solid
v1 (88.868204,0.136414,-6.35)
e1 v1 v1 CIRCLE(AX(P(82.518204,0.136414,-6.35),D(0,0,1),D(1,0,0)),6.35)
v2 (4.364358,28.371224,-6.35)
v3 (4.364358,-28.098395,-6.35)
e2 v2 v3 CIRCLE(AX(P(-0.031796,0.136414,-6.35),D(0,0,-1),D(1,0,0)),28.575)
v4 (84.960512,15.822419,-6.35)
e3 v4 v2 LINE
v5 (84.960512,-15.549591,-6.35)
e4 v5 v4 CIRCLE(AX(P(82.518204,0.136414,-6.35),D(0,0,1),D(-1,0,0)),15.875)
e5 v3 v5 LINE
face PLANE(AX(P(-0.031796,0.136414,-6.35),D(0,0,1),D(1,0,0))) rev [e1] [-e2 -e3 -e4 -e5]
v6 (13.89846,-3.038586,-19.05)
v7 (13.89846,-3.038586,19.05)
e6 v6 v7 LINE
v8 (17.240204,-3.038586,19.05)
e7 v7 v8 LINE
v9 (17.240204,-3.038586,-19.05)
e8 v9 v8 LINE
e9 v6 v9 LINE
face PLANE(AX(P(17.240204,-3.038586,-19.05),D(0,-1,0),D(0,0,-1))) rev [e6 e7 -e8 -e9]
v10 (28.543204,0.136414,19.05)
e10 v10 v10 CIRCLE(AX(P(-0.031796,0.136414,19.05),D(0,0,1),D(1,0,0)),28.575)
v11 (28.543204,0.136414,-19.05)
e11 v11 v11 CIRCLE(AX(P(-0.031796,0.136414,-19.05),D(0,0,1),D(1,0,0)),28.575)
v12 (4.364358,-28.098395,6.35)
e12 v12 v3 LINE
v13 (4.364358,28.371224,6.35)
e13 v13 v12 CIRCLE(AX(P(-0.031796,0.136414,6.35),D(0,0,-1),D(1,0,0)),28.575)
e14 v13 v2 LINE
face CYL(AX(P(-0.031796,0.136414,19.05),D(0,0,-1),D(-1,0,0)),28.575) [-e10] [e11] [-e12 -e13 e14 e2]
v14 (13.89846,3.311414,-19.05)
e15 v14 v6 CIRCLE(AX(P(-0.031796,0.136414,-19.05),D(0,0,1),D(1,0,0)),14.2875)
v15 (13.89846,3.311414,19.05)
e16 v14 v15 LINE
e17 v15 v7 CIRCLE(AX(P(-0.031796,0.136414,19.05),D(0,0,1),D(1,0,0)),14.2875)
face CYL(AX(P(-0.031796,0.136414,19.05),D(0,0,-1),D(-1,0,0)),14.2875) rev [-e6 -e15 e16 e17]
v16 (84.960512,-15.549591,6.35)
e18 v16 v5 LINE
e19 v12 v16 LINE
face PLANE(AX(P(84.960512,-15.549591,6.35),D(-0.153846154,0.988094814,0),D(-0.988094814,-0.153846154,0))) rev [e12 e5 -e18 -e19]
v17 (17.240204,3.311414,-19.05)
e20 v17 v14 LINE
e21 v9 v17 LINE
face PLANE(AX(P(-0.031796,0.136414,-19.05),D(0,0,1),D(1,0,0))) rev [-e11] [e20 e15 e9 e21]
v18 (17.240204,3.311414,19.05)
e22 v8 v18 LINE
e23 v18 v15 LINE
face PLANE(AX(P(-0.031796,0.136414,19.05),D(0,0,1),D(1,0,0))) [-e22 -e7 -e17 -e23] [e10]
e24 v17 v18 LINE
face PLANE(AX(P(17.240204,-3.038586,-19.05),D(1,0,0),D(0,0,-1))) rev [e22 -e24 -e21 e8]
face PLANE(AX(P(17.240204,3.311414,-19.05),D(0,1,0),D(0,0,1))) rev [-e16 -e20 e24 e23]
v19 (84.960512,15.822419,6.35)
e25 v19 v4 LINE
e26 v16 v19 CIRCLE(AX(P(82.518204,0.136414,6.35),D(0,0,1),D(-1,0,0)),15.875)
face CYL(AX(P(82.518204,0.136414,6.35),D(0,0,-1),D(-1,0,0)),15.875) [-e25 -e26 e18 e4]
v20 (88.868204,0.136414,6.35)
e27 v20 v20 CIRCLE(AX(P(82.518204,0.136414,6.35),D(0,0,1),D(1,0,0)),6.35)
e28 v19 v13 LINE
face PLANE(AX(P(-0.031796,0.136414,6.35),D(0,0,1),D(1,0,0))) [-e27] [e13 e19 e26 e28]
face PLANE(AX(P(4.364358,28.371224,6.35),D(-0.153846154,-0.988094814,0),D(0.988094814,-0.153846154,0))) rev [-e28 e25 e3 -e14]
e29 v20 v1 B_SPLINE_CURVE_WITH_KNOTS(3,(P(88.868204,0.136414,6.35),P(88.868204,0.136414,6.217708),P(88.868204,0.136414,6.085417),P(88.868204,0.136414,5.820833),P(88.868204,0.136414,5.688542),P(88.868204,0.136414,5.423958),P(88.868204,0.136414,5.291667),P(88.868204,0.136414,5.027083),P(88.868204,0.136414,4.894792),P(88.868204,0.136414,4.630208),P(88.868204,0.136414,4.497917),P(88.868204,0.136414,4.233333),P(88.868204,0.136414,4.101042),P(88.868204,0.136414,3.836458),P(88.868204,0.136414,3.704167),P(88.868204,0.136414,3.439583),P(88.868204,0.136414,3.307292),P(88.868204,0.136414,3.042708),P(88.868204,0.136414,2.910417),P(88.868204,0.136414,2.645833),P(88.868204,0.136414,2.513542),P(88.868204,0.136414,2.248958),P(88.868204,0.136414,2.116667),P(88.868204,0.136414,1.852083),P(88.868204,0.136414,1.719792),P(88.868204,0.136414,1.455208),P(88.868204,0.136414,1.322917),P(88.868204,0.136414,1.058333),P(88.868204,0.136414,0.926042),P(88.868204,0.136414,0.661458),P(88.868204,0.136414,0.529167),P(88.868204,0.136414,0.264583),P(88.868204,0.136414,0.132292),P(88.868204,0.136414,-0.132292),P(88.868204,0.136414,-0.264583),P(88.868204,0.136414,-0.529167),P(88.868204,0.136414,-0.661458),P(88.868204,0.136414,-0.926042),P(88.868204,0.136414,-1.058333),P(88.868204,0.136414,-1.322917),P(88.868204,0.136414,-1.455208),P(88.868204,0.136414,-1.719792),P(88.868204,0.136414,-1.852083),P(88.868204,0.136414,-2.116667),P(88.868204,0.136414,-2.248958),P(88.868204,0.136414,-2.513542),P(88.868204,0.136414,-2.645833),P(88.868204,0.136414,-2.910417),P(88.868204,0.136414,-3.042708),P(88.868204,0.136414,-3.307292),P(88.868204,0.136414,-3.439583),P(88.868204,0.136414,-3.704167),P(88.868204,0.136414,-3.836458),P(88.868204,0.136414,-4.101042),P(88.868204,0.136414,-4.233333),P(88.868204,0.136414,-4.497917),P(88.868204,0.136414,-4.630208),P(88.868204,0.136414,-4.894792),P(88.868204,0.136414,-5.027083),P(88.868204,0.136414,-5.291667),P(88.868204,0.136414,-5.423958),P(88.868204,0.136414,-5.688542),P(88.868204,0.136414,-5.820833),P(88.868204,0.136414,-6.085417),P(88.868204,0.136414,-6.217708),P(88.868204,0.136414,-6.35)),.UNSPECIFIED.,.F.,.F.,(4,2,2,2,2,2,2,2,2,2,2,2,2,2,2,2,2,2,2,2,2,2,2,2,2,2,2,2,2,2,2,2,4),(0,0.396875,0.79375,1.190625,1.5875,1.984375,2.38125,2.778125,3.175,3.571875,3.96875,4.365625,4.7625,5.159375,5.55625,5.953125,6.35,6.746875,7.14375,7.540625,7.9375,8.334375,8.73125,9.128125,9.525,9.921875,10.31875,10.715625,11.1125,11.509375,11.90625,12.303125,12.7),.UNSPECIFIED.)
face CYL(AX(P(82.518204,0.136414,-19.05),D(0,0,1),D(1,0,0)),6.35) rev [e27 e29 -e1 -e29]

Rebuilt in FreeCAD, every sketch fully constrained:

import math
import FreeCAD as App
import Part
import Sketcher

V = App.Vector
Q = App.Units.Quantity

doc = App.newDocument("Part")
body = doc.addObject("PartDesign::Body", "Body")

sketch1 = doc.addObject("Sketcher::SketchObject", "Sketch")
body.addObject(sketch1)
sketch1.AttachmentSupport = (doc.XY_Plane, [""])
sketch1.MapMode = "FlatFace"
sketch1.addGeometry([
    Part.Circle(V(-0.031796, 0.136414, 0), V(0, 0, 1), 28.575),
    Part.Circle(V(-0.031796, 0.136414, 0), V(0, 0, 1), 14.2875),
], False)
sketch1.addConstraint([
    Sketcher.Constraint("Coincident", 1, 3, 0, 3),
    Sketcher.Constraint("Diameter", 0, Q("2.25 in")),
    Sketcher.Constraint("Diameter", 1, Q("1.125 in")),
    Sketcher.Constraint("DistanceX", 0, 3, -1, 1, Q("0.031796 mm")),
    Sketcher.Constraint("DistanceY", -1, 1, 0, 3, Q("0.136414 mm")),
])
pad1 = doc.addObject("PartDesign::Pad", "Pad")
body.addObject(pad1)
pad1.Profile = sketch1
pad1.Length = Q("1.5 in")
pad1.Midplane = True

sketch2 = doc.addObject("Sketcher::SketchObject", "Sketch001")
body.addObject(sketch2)
sketch2.AttachmentSupport = (doc.XY_Plane, [""])
sketch2.MapMode = "FlatFace"
sketch2.addGeometry([
    Part.LineSegment(V(84.960512, 15.822419, 0), V(4.364358, 28.371224, 0)),
    Part.ArcOfCircle(Part.Circle(V(-0.031796, 0.136414, 0), V(0, 0, 1), 28.575), math.radians(-81.150117), math.radians(81.150117)),
    Part.LineSegment(V(4.364358, -28.098395, 0), V(84.960512, -15.549591, 0)),
    Part.ArcOfCircle(Part.Circle(V(82.518204, 0.136414, 0), V(0, 0, 1), 15.875), math.radians(-81.150117), math.radians(81.150117)),
], False)
sketch2.addConstraint([
    Sketcher.Constraint("Tangent", 0, 2, 1, 2),
    Sketcher.Constraint("Tangent", 1, 1, 2, 1),
    Sketcher.Constraint("Tangent", 2, 2, 3, 1),
    Sketcher.Constraint("Tangent", 3, 2, 0, 1),
    Sketcher.Constraint("Horizontal", 1, 3, 3, 3),
    Sketcher.Constraint("Radius", 1, Q("1.125 in")),
    Sketcher.Constraint("Radius", 3, Q("0.625 in")),
    Sketcher.Constraint("DistanceX", 1, 3, 3, 3, Q("3.25 in")),
    Sketcher.Constraint("DistanceX", -1, 1, 2, 2, Q("84.960512 mm")),
    Sketcher.Constraint("DistanceY", 2, 2, -1, 1, Q("15.549591 mm")),
])
pad2 = doc.addObject("PartDesign::Pad", "Pad001")
body.addObject(pad2)
pad2.Profile = sketch2
pad2.Length = Q("0.5 in")
pad2.Midplane = True

sketch3 = doc.addObject("Sketcher::SketchObject", "Sketch002")
body.addObject(sketch3)
sketch3.AttachmentSupport = (doc.XY_Plane, [""])
sketch3.MapMode = "FlatFace"
sketch3.addGeometry([
    Part.Circle(V(82.518204, 0.136414, 0), V(0, 0, 1), 6.35),
    Part.LineSegment(V(13.89846, 3.311414, 0), V(13.89846, -3.038586, 0)),
    Part.LineSegment(V(13.89846, -3.038586, 0), V(17.240204, -3.038586, 0)),
    Part.LineSegment(V(17.240204, -3.038586, 0), V(17.240204, 3.311414, 0)),
    Part.LineSegment(V(17.240204, 3.311414, 0), V(13.89846, 3.311414, 0)),
], False)
sketch3.addConstraint([
    Sketcher.Constraint("Coincident", 1, 2, 2, 1),
    Sketcher.Constraint("Coincident", 2, 2, 3, 1),
    Sketcher.Constraint("Coincident", 3, 2, 4, 1),
    Sketcher.Constraint("Coincident", 4, 2, 1, 1),
    Sketcher.Constraint("Vertical", 1),
    Sketcher.Constraint("Horizontal", 2),
    Sketcher.Constraint("Vertical", 3),
    Sketcher.Constraint("Horizontal", 4),
    Sketcher.Constraint("Diameter", 0, Q("0.5 in")),
    Sketcher.Constraint("DistanceY", 1, 2, 1, 1, Q("0.25 in")),
    Sketcher.Constraint("DistanceX", 2, 2, 0, 3, Q("2.57 in")),
    Sketcher.Constraint("DistanceY", 1, 2, 0, 3, Q("0.125 in")),
    Sketcher.Constraint("DistanceX", 2, 1, 2, 2, Q("3.341744 mm")),
    Sketcher.Constraint("DistanceX", -1, 1, 1, 2, Q("13.89846 mm")),
    Sketcher.Constraint("DistanceY", -1, 1, 0, 3, Q("0.136414 mm")),
])
pocket1 = doc.addObject("PartDesign::Pocket", "Pocket")
body.addObject(pocket1)
pocket1.Profile = sketch3
pocket1.Type = "ThroughAll"
pocket1.Midplane = True

doc.recompute()
